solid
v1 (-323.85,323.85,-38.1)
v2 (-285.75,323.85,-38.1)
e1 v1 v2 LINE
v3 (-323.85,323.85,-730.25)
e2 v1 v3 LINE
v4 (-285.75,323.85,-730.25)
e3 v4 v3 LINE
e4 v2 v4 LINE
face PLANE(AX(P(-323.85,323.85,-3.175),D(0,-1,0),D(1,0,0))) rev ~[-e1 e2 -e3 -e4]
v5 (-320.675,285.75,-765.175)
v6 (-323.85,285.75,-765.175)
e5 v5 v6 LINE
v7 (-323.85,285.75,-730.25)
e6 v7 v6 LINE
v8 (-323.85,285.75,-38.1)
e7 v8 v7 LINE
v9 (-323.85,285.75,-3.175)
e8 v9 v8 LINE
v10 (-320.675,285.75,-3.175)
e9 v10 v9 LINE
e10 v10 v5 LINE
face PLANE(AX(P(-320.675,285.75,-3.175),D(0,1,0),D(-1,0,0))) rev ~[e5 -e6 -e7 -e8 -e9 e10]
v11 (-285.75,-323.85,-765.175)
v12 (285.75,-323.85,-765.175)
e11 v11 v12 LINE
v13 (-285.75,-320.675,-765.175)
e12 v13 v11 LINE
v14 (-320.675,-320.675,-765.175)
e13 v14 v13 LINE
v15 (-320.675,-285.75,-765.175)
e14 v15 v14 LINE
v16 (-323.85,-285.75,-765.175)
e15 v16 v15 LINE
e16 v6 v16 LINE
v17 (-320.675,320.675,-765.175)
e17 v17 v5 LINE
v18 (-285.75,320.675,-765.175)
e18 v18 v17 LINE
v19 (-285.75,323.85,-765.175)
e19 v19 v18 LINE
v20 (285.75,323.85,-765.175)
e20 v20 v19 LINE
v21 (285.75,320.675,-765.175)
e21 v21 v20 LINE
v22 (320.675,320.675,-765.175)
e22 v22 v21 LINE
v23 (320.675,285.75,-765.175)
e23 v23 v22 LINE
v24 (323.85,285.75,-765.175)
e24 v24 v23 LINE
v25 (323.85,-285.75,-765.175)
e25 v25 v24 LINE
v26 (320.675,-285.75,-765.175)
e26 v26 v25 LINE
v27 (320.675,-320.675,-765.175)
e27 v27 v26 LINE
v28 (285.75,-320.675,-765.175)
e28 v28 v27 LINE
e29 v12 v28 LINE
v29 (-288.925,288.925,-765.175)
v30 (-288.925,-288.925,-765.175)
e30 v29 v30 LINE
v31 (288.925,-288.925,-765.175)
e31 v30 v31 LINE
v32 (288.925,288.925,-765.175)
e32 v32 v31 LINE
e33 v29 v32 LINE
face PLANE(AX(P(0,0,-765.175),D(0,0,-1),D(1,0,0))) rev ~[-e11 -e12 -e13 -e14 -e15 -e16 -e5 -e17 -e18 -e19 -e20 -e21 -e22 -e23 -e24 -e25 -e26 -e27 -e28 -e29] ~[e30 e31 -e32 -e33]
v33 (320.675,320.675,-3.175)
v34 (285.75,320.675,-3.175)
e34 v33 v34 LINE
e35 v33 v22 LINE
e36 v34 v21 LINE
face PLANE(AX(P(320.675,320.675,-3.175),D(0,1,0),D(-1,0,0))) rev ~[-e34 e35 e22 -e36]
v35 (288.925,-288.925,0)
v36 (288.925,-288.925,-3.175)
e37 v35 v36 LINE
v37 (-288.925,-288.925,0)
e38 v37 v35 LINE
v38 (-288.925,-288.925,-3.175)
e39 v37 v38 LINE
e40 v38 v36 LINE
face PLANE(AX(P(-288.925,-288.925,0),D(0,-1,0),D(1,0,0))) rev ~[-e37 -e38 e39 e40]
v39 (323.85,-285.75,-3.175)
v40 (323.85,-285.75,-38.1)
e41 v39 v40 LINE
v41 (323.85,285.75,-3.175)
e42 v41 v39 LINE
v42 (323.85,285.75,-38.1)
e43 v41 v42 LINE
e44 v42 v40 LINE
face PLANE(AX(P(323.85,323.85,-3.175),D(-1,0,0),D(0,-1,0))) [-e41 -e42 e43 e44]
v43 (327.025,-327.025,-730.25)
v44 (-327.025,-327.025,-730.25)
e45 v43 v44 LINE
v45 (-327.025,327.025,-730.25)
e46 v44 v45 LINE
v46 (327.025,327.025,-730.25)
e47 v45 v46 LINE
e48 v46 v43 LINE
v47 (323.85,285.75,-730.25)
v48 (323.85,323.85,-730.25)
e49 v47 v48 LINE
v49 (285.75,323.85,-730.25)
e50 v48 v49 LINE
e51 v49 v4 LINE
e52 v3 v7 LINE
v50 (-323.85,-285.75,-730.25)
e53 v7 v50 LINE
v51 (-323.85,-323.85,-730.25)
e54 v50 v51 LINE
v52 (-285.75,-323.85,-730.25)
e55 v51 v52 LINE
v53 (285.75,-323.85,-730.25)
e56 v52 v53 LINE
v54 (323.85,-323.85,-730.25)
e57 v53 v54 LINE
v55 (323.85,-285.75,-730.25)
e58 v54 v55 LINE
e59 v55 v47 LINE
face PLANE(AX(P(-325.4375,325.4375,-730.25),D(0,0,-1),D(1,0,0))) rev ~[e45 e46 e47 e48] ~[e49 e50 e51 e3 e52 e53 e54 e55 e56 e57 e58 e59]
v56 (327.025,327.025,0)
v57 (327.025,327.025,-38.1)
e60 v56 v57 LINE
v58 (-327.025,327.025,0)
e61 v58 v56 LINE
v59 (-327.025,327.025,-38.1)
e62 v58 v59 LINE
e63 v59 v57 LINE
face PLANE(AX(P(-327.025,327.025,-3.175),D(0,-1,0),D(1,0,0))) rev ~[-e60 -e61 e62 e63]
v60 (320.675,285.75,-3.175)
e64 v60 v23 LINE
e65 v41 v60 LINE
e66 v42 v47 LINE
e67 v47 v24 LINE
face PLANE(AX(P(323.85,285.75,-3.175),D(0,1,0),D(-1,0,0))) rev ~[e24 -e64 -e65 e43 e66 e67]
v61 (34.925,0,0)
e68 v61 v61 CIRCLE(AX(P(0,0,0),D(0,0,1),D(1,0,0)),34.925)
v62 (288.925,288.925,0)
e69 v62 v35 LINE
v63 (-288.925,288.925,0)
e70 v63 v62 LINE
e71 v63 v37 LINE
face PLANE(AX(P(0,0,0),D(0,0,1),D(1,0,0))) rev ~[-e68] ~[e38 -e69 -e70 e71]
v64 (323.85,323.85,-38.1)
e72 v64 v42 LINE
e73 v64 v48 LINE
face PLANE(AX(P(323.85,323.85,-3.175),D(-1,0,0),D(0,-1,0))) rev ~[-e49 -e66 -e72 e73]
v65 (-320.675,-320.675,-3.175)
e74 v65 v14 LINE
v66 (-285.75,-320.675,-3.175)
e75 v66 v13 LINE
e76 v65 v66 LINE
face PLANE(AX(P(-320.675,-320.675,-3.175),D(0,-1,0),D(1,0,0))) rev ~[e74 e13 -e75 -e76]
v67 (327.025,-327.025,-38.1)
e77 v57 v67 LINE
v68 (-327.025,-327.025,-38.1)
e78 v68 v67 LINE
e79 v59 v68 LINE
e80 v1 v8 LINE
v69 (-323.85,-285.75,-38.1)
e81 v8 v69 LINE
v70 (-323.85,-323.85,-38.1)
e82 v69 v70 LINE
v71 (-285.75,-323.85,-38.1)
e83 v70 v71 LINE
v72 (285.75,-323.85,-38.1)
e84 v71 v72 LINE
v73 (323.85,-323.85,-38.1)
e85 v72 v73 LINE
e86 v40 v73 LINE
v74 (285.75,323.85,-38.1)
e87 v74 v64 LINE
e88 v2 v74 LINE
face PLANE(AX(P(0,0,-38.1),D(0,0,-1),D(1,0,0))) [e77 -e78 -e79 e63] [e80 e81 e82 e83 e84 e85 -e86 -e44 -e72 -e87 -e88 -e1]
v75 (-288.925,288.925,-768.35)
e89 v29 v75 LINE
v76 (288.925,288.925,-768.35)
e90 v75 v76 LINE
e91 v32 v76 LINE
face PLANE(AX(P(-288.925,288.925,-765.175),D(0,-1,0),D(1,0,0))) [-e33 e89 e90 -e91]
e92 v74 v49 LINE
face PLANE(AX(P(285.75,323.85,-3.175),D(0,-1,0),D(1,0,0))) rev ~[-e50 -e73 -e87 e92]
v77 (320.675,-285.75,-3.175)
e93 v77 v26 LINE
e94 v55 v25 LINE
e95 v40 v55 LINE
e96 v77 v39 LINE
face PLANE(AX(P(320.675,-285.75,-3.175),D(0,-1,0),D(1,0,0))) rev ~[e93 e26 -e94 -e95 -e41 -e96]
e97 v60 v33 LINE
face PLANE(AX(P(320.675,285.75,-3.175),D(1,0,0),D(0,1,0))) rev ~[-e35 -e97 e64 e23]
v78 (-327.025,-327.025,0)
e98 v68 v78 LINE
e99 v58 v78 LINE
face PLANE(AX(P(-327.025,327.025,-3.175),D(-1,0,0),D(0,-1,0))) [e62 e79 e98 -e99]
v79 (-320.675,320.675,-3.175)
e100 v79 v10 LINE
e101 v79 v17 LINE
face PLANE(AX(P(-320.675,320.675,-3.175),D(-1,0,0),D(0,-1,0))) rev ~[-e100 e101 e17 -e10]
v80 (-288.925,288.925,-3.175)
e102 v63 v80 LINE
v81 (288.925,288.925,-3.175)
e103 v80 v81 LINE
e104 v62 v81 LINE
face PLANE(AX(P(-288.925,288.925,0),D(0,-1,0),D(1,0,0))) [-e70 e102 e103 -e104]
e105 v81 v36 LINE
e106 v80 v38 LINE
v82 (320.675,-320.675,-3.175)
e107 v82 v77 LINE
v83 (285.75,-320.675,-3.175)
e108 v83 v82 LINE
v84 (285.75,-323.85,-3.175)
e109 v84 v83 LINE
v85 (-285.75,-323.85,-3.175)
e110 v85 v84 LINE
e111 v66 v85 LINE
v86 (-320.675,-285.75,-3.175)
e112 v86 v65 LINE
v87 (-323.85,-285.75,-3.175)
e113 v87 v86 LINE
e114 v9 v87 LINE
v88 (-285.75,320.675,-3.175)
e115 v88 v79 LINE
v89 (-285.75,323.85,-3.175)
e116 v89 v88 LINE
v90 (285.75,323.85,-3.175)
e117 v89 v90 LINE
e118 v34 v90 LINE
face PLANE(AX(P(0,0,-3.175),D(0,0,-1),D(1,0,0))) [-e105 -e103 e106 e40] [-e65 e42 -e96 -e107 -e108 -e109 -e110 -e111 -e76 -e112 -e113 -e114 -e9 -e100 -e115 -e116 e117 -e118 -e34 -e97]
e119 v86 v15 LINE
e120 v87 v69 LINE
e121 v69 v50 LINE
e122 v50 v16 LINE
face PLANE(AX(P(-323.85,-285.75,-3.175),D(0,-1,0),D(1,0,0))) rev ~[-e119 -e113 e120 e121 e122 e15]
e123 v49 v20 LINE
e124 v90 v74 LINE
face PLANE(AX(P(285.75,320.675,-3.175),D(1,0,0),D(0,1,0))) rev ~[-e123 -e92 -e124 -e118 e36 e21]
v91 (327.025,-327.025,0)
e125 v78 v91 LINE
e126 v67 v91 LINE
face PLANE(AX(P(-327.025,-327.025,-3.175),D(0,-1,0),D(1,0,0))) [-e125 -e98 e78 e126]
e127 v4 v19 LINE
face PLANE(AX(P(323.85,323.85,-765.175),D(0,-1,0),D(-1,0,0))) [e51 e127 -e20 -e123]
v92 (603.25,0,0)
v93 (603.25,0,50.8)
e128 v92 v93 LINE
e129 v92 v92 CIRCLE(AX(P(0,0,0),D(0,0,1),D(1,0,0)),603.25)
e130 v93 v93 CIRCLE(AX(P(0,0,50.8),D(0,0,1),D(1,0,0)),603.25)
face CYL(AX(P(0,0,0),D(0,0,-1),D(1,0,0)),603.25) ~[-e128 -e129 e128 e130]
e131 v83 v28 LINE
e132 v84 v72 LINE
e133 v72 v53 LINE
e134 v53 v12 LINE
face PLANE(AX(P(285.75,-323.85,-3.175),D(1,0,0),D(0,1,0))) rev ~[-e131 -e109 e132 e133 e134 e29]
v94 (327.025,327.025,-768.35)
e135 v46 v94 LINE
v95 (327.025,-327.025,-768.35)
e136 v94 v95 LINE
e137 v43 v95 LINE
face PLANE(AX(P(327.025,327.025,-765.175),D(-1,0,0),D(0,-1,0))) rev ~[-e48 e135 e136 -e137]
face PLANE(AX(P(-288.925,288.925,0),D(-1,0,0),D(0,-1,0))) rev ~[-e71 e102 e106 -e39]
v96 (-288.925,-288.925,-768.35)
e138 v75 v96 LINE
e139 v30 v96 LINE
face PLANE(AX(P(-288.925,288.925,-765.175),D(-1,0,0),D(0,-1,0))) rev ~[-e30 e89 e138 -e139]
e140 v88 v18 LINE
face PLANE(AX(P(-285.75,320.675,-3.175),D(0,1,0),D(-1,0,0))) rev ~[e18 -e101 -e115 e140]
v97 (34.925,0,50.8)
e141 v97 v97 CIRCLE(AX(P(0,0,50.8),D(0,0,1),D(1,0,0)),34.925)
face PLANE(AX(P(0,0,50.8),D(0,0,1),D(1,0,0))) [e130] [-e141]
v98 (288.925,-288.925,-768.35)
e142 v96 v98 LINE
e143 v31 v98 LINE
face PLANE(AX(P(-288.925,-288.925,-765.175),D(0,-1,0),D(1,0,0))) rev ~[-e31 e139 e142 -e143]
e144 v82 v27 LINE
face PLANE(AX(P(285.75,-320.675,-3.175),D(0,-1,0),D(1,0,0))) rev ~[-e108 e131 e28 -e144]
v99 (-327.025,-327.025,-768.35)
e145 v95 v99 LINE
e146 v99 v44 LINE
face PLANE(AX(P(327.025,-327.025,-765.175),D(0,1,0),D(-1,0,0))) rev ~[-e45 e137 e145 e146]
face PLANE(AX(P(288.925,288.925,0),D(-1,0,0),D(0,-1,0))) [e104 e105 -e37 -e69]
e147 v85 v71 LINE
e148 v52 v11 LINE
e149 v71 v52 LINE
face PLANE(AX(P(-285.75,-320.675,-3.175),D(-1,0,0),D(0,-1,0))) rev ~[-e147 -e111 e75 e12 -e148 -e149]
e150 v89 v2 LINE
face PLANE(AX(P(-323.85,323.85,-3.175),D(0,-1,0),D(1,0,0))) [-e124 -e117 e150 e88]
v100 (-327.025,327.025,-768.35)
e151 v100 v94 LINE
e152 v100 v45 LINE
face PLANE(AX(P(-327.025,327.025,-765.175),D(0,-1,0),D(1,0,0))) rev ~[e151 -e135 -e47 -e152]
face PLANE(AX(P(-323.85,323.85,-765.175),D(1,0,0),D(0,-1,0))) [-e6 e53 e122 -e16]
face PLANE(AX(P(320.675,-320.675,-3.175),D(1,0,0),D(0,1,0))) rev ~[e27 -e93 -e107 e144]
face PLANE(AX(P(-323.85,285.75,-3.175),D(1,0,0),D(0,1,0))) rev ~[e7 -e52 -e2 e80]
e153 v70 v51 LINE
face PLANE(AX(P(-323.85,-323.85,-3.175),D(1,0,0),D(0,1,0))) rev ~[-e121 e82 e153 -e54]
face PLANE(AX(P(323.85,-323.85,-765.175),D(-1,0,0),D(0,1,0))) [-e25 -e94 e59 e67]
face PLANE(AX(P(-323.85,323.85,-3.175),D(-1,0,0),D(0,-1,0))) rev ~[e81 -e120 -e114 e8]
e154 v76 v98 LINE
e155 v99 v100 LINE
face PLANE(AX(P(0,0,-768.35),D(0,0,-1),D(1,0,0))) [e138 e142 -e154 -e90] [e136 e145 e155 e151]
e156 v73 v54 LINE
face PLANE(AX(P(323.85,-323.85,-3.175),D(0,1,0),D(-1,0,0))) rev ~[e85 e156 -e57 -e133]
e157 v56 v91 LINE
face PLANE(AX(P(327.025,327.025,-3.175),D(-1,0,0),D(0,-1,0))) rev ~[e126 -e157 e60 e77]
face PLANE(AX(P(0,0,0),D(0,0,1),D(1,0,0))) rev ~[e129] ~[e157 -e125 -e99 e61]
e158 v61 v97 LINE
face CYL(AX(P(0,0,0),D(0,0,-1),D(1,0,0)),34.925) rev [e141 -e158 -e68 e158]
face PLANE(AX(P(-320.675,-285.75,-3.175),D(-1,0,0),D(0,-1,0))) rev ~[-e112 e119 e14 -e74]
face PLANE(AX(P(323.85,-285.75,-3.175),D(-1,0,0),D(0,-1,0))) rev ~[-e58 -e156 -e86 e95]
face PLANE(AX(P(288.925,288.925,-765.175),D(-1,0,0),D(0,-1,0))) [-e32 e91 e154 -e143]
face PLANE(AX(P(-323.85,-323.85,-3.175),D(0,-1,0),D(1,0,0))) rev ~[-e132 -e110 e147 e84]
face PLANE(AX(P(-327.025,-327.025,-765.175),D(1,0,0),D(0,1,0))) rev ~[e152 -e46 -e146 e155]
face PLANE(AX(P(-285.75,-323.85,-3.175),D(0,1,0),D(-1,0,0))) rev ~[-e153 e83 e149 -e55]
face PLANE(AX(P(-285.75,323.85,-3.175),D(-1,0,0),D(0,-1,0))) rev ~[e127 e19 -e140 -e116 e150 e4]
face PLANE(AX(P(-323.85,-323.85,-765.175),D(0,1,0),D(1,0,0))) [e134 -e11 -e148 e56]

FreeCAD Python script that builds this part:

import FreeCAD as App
import Part
import Sketcher
Q = App.Units.Quantity


def add_polygon(sketch, points):
    """Adds a closed chain of lines whose ends are joined by coincident constraints."""
    first, n = sketch.GeometryCount, len(points)
    for a, b in zip(points, points[1:] + points[:1]):
        sketch.addGeometry(Part.LineSegment(App.Vector(*a, 0), App.Vector(*b, 0)), False)
    for i in range(n):
        sketch.addConstraint(Sketcher.Constraint("Coincident", first + i, 2, first + (i + 1) % n, 1))

doc = App.newDocument("Part")
body = doc.addObject("PartDesign::Body", "Body")

# Sketch on XY plane
sketch1 = doc.addObject("Sketcher::SketchObject", "Sketch")
body.addObject(sketch1)
sketch1.AttachmentSupport = (doc.XY_Plane, [""])
sketch1.MapMode = "FlatFace"
sketch1.addGeometry([
    Part.Circle(App.Vector(0, 0, 0), App.Vector(0, 0, 1), 603),
    Part.Circle(App.Vector(0, 0, 0), App.Vector(0, 0, 1), 35),
], False)
sketch1.addConstraint([
    Sketcher.Constraint("Coincident", 0, 3, -1, 1),
    Sketcher.Constraint("Coincident", 1, 3, -1, 1),
    Sketcher.Constraint("Diameter", 0, Q("47.5 in")),
    Sketcher.Constraint("Diameter", 1, Q("2.75 in")),
])
pad1 = doc.addObject("PartDesign::Pad", "Pad")
body.addObject(pad1)
pad1.Profile = sketch1
pad1.Length = Q("2 in")

# Sketch on XY plane
sketch2 = doc.addObject("Sketcher::SketchObject", "Sketch001")
body.addObject(sketch2)
sketch2.AttachmentSupport = (doc.XY_Plane, [""])
sketch2.MapMode = "FlatFace"
add_polygon(sketch2, [(-327, -327), (-327, 327), (327, 327), (327, -327)])  # lines 0-3
add_polygon(sketch2, [(289, 289), (-289, 289), (-289, -289), (289, -289)])  # lines 4-7
sketch2.addConstraint([
    Sketcher.Constraint("Vertical", 0),
    Sketcher.Constraint("Horizontal", 1),
    Sketcher.Constraint("Vertical", 2),
    Sketcher.Constraint("Horizontal", 3),
    Sketcher.Constraint("Horizontal", 4),
    Sketcher.Constraint("Vertical", 5),
    Sketcher.Constraint("Horizontal", 6),
    Sketcher.Constraint("Vertical", 7),
    Sketcher.Constraint("Symmetric", 0, 2, 2, 2, -1, 1),
    Sketcher.Constraint("Symmetric", 4, 2, 6, 2, -1, 1),
    Sketcher.Constraint("Equal", 3, 0),
    Sketcher.Constraint("Equal", 6, 5),
    Sketcher.Constraint("DistanceX", 1, 1, 1, 2, Q("25.75 in")),
    Sketcher.Constraint("DistanceX", 4, 2, 4, 1, Q("22.75 in")),
])
pad2 = doc.addObject("PartDesign::Pad", "Pad001")
body.addObject(pad2)
pad2.Profile = sketch2
pad2.Length = Q("0.125 in")
pad2.Reversed = True

# Sketch on XY plane
sketch3 = doc.addObject("Sketcher::SketchObject", "Sketch002")
body.addObject(sketch3)
sketch3.AttachmentSupport = (doc.XY_Plane, [""])
sketch3.MapMode = "FlatFace"
sketch3.AttachmentOffset = App.Placement(App.Vector(0, 0, -0.125 * 25.4), App.Rotation())
add_polygon(sketch3, [(-327, -327), (-327, 327), (327, 327), (327, -327)])  # lines 0-3
add_polygon(sketch3, [(324, 324), (-324, 324), (-324, -324), (324, -324)])  # lines 4-7
sketch3.addConstraint([
    Sketcher.Constraint("Vertical", 0),
    Sketcher.Constraint("Horizontal", 1),
    Sketcher.Constraint("Vertical", 2),
    Sketcher.Constraint("Horizontal", 3),
    Sketcher.Constraint("Horizontal", 4),
    Sketcher.Constraint("Vertical", 5),
    Sketcher.Constraint("Horizontal", 6),
    Sketcher.Constraint("Vertical", 7),
    Sketcher.Constraint("Symmetric", 0, 2, 2, 2, -1, 1),
    Sketcher.Constraint("Symmetric", 4, 2, 6, 2, -1, 1),
    Sketcher.Constraint("Equal", 3, 0),
    Sketcher.Constraint("Equal", 6, 5),
    Sketcher.Constraint("DistanceX", 4, 2, 4, 1, Q("25.5 in")),
    Sketcher.Constraint("DistanceX", 1, 1, 1, 2, Q("25.75 in")),
])
pad3 = doc.addObject("PartDesign::Pad", "Pad002")
body.addObject(pad3)
pad3.Profile = sketch3
pad3.Length = Q("1.375 in")
pad3.Reversed = True

# Sketch on XY plane
sketch4 = doc.addObject("Sketcher::SketchObject", "Sketch003")
body.addObject(sketch4)
sketch4.AttachmentSupport = (doc.XY_Plane, [""])
sketch4.MapMode = "FlatFace"
sketch4.AttachmentOffset = App.Placement(App.Vector(0, 0, -0.125 * 25.4), App.Rotation())
add_polygon(sketch4, [(-285.8, -323.9), (-323.9, -323.9), (-323.9, -285.8), (-320.7, -285.8), (-320.7, -320.7), (-285.8, -320.7)])  # lines 0-5
sketch4.addConstraint([
    Sketcher.Constraint("Horizontal", 0),
    Sketcher.Constraint("Vertical", 1),
    Sketcher.Constraint("Horizontal", 2),
    Sketcher.Constraint("Vertical", 3),
    Sketcher.Constraint("Horizontal", 4),
    Sketcher.Constraint("Vertical", 5),
    Sketcher.Constraint("Equal", 0, 1),
    Sketcher.Constraint("Equal", 4, 3),
    Sketcher.Constraint("DistanceX", 0, 2, 0, 1, Q("1.5 in")),
    Sketcher.Constraint("DistanceX", 2, 1, 2, 2, Q("0.125 in")),
    Sketcher.Constraint("DistanceX", 0, 2, -1, 1, Q("12.75 in")),
    Sketcher.Constraint("DistanceY", 0, 2, -1, 1, Q("12.75 in")),
])
pad4 = doc.addObject("PartDesign::Pad", "Pad003")
body.addObject(pad4)
pad4.Profile = sketch4
pad4.Length = Q("30 in")
pad4.Reversed = True

# Sketch on XY plane
sketch5 = doc.addObject("Sketcher::SketchObject", "Sketch004")
body.addObject(sketch5)
sketch5.AttachmentSupport = (doc.XY_Plane, [""])
sketch5.MapMode = "FlatFace"
sketch5.AttachmentOffset = App.Placement(App.Vector(0, 0, -0.125 * 25.4), App.Rotation())
add_polygon(sketch5, [(323.9, -285.8), (323.9, -323.9), (285.8, -323.9), (285.8, -320.7), (320.7, -320.7), (320.7, -285.8)])  # lines 0-5
sketch5.addConstraint([
    Sketcher.Constraint("Vertical", 0),
    Sketcher.Constraint("Horizontal", 1),
    Sketcher.Constraint("Vertical", 2),
    Sketcher.Constraint("Horizontal", 3),
    Sketcher.Constraint("Vertical", 4),
    Sketcher.Constraint("Horizontal", 5),
    Sketcher.Constraint("Equal", 1, 0),
    Sketcher.Constraint("Equal", 5, 2),
    Sketcher.Constraint("DistanceX", 1, 2, 1, 1, Q("1.5 in")),
    Sketcher.Constraint("DistanceX", 3, 1, 3, 2, Q("1.375 in")),
    Sketcher.Constraint("DistanceX", -1, 1, 0, 2, Q("12.75 in")),
    Sketcher.Constraint("DistanceY", 0, 2, -1, 1, Q("12.75 in")),
])
pad5 = doc.addObject("PartDesign::Pad", "Pad004")
body.addObject(pad5)
pad5.Profile = sketch5
pad5.Length = Q("30 in")
pad5.Reversed = True

# Sketch on XY plane
sketch6 = doc.addObject("Sketcher::SketchObject", "Sketch005")
body.addObject(sketch6)
sketch6.AttachmentSupport = (doc.XY_Plane, [""])
sketch6.MapMode = "FlatFace"
sketch6.AttachmentOffset = App.Placement(App.Vector(0, 0, -0.125 * 25.4), App.Rotation())
add_polygon(sketch6, [(285.8, 323.9), (323.9, 323.9), (323.9, 285.8), (320.7, 285.8), (320.7, 320.7), (285.8, 320.7)])  # lines 0-5
sketch6.addConstraint([
    Sketcher.Constraint("Horizontal", 0),
    Sketcher.Constraint("Vertical", 1),
    Sketcher.Constraint("Horizontal", 2),
    Sketcher.Constraint("Vertical", 3),
    Sketcher.Constraint("Horizontal", 4),
    Sketcher.Constraint("Vertical", 5),
    Sketcher.Constraint("Equal", 0, 1),
    Sketcher.Constraint("Equal", 4, 3),
    Sketcher.Constraint("DistanceX", 0, 1, 0, 2, Q("1.5 in")),
    Sketcher.Constraint("DistanceX", 2, 2, 2, 1, Q("0.125 in")),
    Sketcher.Constraint("DistanceX", -1, 1, 0, 2, Q("12.75 in")),
    Sketcher.Constraint("DistanceY", -1, 1, 0, 2, Q("12.75 in")),
])
pad6 = doc.addObject("PartDesign::Pad", "Pad005")
body.addObject(pad6)
pad6.Profile = sketch6
pad6.Length = Q("30 in")
pad6.Reversed = True

# Sketch on XY plane
sketch7 = doc.addObject("Sketcher::SketchObject", "Sketch006")
body.addObject(sketch7)
sketch7.AttachmentSupport = (doc.XY_Plane, [""])
sketch7.MapMode = "FlatFace"
sketch7.AttachmentOffset = App.Placement(App.Vector(0, 0, -0.125 * 25.4), App.Rotation())
add_polygon(sketch7, [(-323.9, 285.8), (-323.9, 323.9), (-285.8, 323.9), (-285.8, 320.7), (-320.7, 320.7), (-320.7, 285.8)])  # lines 0-5
sketch7.addConstraint([
    Sketcher.Constraint("Vertical", 0),
    Sketcher.Constraint("Horizontal", 1),
    Sketcher.Constraint("Vertical", 2),
    Sketcher.Constraint("Horizontal", 3),
    Sketcher.Constraint("Vertical", 4),
    Sketcher.Constraint("Horizontal", 5),
    Sketcher.Constraint("Equal", 1, 0),
    Sketcher.Constraint("Equal", 5, 2),
    Sketcher.Constraint("DistanceX", 1, 1, 1, 2, Q("1.5 in")),
    Sketcher.Constraint("DistanceX", 3, 2, 3, 1, Q("1.375 in")),
    Sketcher.Constraint("DistanceX", 0, 2, -1, 1, Q("12.75 in")),
    Sketcher.Constraint("DistanceY", -1, 1, 0, 2, Q("12.75 in")),
])
pad7 = doc.addObject("PartDesign::Pad", "Pad006")
body.addObject(pad7)
pad7.Profile = sketch7
pad7.Length = Q("30 in")
pad7.Reversed = True

# Sketch on XY plane
sketch8 = doc.addObject("Sketcher::SketchObject", "Sketch007")
body.addObject(sketch8)
sketch8.AttachmentSupport = (doc.XY_Plane, [""])
sketch8.MapMode = "FlatFace"
sketch8.AttachmentOffset = App.Placement(App.Vector(0, 0, -30.125 * 25.4), App.Rotation())
add_polygon(sketch8, [(327, 327), (327, -327), (-327, -327), (-327, 327)])  # lines 0-3
add_polygon(sketch8, [(-324, -324), (324, -324), (324, 324), (-324, 324)])  # lines 4-7
sketch8.addConstraint([
    Sketcher.Constraint("Vertical", 0),
    Sketcher.Constraint("Horizontal", 1),
    Sketcher.Constraint("Vertical", 2),
    Sketcher.Constraint("Horizontal", 3),
    Sketcher.Constraint("Horizontal", 4),
    Sketcher.Constraint("Vertical", 5),
    Sketcher.Constraint("Horizontal", 6),
    Sketcher.Constraint("Vertical", 7),
    Sketcher.Constraint("Symmetric", 0, 2, 2, 2, -1, 1),
    Sketcher.Constraint("Symmetric", 4, 2, 6, 2, -1, 1),
    Sketcher.Constraint("Equal", 3, 0),
    Sketcher.Constraint("Equal", 6, 5),
    Sketcher.Constraint("DistanceX", 4, 1, 4, 2, Q("25.5 in")),
    Sketcher.Constraint("DistanceX", 1, 2, 1, 1, Q("25.75 in")),
])
pad8 = doc.addObject("PartDesign::Pad", "Pad007")
body.addObject(pad8)
pad8.Profile = sketch8
pad8.Length = Q("1.375 in")

# Sketch on XY plane
sketch9 = doc.addObject("Sketcher::SketchObject", "Sketch008")
body.addObject(sketch9)
sketch9.AttachmentSupport = (doc.XY_Plane, [""])
sketch9.MapMode = "FlatFace"
sketch9.AttachmentOffset = App.Placement(App.Vector(0, 0, -30.125 * 25.4), App.Rotation())
add_polygon(sketch9, [(-327, 327), (327, 327), (327, -327), (-327, -327)])  # lines 0-3
add_polygon(sketch9, [(289, 289), (-289, 289), (-289, -289), (289, -289)])  # lines 4-7
sketch9.addConstraint([
    Sketcher.Constraint("Horizontal", 0),
    Sketcher.Constraint("Vertical", 1),
    Sketcher.Constraint("Horizontal", 2),
    Sketcher.Constraint("Vertical", 3),
    Sketcher.Constraint("Horizontal", 4),
    Sketcher.Constraint("Vertical", 5),
    Sketcher.Constraint("Horizontal", 6),
    Sketcher.Constraint("Vertical", 7),
    Sketcher.Constraint("Symmetric", 0, 2, 2, 2, -1, 1),
    Sketcher.Constraint("Symmetric", 4, 2, 6, 2, -1, 1),
    Sketcher.Constraint("Equal", 2, 1),
    Sketcher.Constraint("Equal", 6, 5),
    Sketcher.Constraint("DistanceX", 0, 1, 0, 2, Q("25.75 in")),
    Sketcher.Constraint("DistanceX", 4, 2, 4, 1, Q("22.75 in")),
])
pad9 = doc.addObject("PartDesign::Pad", "Pad008")
body.addObject(pad9)
pad9.Profile = sketch9
pad9.Length = Q("0.125 in")
pad9.Reversed = True

doc.recompute()
